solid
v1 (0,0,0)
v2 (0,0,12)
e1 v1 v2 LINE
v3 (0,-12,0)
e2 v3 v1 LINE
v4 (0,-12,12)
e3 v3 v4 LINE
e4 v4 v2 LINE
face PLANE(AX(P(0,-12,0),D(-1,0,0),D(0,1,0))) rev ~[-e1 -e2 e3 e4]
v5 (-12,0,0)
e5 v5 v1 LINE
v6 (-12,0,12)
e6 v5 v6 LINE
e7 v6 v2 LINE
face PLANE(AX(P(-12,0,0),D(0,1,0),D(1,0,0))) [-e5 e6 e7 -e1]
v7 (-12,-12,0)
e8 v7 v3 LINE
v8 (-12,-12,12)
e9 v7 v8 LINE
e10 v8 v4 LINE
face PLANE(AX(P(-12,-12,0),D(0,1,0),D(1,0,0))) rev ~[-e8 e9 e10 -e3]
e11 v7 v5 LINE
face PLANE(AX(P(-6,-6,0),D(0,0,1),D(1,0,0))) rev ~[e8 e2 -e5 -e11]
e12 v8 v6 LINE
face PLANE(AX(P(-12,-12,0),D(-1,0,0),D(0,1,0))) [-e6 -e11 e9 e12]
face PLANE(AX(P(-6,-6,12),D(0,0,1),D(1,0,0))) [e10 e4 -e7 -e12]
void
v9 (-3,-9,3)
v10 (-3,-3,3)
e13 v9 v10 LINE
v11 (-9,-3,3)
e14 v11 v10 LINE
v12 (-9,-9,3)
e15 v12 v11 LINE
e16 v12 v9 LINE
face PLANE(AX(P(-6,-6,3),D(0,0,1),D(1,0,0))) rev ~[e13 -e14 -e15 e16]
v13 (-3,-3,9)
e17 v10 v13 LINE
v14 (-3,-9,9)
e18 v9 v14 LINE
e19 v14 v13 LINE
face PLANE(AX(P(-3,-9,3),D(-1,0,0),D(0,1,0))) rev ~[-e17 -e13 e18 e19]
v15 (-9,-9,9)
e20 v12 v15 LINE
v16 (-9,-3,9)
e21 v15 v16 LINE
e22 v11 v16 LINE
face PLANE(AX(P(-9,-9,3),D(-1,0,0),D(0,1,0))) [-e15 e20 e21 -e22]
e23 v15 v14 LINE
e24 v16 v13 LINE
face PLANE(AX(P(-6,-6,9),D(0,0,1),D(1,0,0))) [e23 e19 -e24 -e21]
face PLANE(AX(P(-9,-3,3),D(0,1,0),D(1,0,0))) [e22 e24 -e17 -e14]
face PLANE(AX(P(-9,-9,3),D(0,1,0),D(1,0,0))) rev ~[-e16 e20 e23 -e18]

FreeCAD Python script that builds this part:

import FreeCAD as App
import Part
import Sketcher


def add_polygon(sketch, points):
    """Adds a closed chain of lines whose ends are joined by coincident constraints."""
    first, n = sketch.GeometryCount, len(points)
    for a, b in zip(points, points[1:] + points[:1]):
        sketch.addGeometry(Part.LineSegment(App.Vector(*a, 0), App.Vector(*b, 0)), False)
    for i in range(n):
        sketch.addConstraint(Sketcher.Constraint("Coincident", first + i, 2, first + (i + 1) % n, 1))

doc = App.newDocument("Part")
body = doc.addObject("PartDesign::Body", "Body")

sketch1 = body.newObject("Sketcher::SketchObject", "Sketch")
sketch1.AttachmentSupport = (doc.getObject("XY_Plane"), [""])
sketch1.MapMode = "FlatFace"
add_polygon(sketch1, [(-12, 0), (-12, -12), (0, -12), (0, 0)])
sketch1.addConstraint([
    Sketcher.Constraint("Vertical", 0),
    Sketcher.Constraint("Horizontal", 1),
    Sketcher.Constraint("Vertical", 2),
    Sketcher.Constraint("Horizontal", 3),
    Sketcher.Constraint("Coincident", 2, 2, -1, 1),
    Sketcher.Constraint("Equal", 3, 0),
    Sketcher.Constraint("DistanceX", 1, 1, 1, 2, 12.0),
])
pad1 = body.newObject("PartDesign::Pad", "Pad")
pad1.Profile = sketch1
pad1.Length = 12

sketch2 = body.newObject("Sketcher::SketchObject", "Sketch001")
sketch2.AttachmentSupport = (doc.getObject("XY_Plane"), [""])
sketch2.MapMode = "FlatFace"
sketch2.AttachmentOffset = App.Placement(App.Vector(0, 0, 3), App.Rotation())
add_polygon(sketch2, [(-9, -3), (-9, -9), (-3, -9), (-3, -3)])
sketch2.addConstraint([
    Sketcher.Constraint("Vertical", 0),
    Sketcher.Constraint("Horizontal", 1),
    Sketcher.Constraint("Vertical", 2),
    Sketcher.Constraint("Horizontal", 3),
    Sketcher.Constraint("Equal", 3, 0),
    Sketcher.Constraint("DistanceX", 1, 1, 1, 2, 6.0),
    Sketcher.Constraint("DistanceX", 0, 2, -1, 1, 9.0),
    Sketcher.Constraint("DistanceY", 0, 2, -1, 1, 9.0),
])
pocket1 = body.newObject("PartDesign::Pocket", "Pocket")
pocket1.Profile = sketch2
pocket1.Length = 6
pocket1.Reversed = True

doc.recompute()
